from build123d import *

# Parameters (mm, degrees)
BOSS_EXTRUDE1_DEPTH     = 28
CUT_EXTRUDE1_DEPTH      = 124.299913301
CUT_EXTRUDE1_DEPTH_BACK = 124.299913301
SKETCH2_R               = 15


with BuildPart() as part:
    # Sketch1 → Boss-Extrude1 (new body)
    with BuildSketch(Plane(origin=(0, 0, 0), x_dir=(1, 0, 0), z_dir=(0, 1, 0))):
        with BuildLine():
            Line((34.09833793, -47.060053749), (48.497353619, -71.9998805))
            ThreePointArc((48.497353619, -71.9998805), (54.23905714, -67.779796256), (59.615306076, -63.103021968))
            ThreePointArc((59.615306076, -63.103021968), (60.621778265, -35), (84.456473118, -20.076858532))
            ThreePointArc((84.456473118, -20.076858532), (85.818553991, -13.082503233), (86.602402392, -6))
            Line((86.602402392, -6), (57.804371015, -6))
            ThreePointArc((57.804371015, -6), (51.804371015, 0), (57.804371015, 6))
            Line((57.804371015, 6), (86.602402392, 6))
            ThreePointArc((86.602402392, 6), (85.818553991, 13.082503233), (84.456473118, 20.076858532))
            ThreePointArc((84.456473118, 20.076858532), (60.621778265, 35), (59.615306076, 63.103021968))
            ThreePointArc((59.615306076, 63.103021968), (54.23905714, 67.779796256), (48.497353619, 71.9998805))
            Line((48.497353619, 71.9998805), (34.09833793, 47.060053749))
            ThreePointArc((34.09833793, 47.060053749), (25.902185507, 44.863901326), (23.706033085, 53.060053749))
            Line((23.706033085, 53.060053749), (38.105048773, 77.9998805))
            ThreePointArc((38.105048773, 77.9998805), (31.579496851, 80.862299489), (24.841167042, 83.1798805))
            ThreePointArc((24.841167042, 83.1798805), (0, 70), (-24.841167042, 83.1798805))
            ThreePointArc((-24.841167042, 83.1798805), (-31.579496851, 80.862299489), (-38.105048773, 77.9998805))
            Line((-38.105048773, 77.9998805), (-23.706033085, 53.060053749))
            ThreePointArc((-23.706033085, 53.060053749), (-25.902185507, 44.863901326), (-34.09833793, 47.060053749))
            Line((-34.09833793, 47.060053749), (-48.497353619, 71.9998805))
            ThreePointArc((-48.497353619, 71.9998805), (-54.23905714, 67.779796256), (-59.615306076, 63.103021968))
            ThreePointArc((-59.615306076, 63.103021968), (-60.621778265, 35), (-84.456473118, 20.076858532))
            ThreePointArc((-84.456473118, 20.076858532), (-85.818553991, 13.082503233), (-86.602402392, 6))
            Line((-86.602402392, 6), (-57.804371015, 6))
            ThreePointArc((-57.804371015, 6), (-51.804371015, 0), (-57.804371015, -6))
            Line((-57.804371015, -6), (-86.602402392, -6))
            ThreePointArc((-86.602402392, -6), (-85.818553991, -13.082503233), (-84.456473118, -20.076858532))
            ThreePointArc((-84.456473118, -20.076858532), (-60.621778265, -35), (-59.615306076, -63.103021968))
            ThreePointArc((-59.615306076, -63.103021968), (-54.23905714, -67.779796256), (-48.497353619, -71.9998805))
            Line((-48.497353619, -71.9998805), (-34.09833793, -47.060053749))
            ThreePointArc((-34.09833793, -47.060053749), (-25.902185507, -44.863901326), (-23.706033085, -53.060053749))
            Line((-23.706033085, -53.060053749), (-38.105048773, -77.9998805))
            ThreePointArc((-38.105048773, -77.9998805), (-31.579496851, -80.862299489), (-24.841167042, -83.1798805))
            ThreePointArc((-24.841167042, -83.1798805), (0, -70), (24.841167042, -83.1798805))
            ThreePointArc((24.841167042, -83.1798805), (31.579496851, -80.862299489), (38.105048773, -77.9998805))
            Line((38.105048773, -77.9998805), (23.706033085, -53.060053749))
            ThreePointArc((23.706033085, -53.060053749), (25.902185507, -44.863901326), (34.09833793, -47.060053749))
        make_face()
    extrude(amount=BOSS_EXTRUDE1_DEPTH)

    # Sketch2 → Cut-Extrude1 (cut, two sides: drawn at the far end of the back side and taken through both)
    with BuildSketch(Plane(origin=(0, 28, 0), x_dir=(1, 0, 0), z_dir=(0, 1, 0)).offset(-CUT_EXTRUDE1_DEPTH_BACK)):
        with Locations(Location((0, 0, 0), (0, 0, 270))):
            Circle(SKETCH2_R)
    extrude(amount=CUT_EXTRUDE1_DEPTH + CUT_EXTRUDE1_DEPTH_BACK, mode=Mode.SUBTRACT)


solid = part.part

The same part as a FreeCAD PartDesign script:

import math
import FreeCAD as App
import Part
import Sketcher

V = App.Vector
Q = App.Units.Quantity

doc = App.newDocument("Part")
body = doc.addObject("PartDesign::Body", "Body")

sketch1 = doc.addObject("Sketcher::SketchObject", "Sketch")
body.addObject(sketch1)
sketch1.AttachmentSupport = (doc.XZ_Plane, [""])
sketch1.MapMode = "FlatFace"
sketch1.addGeometry(Part.LineSegment(V(34, 47, 0), V(48, 72, 0)), False)
sketch1.addGeometry(Part.ArcOfCircle(Part.Circle(V(0, 0, 0), V(0, 0, 1), 87), math.radians(46.63), math.radians(56.04)), False)
sketch1.addGeometry(Part.ArcOfCircle(Part.Circle(V(87, 50, 0), V(0, 0, 1), 30), math.radians(154), math.radians(266)), False)
sketch1.addGeometry(Part.ArcOfCircle(Part.Circle(V(0, 0, 0), V(0, 0, 1), 87), math.radians(3.96), math.radians(13.37)), False)
sketch1.addGeometry(Part.LineSegment(V(87, 6, 0), V(58, 6, 0)), False)
sketch1.addGeometry(Part.ArcOfCircle(Part.Circle(V(58, 0, 0), V(0, 0, 1), 6), math.radians(90), math.radians(270)), False)
sketch1.addGeometry(Part.LineSegment(V(58, -6, 0), V(87, -6, 0)), False)
sketch1.addGeometry(Part.ArcOfCircle(Part.Circle(V(0, 0, 0), V(0, 0, 1), 87), math.radians(-13.37), math.radians(-3.96)), False)
sketch1.addGeometry(Part.ArcOfCircle(Part.Circle(V(87, -50, 0), V(0, 0, 1), 30), math.radians(94), math.radians(206)), False)
sketch1.addGeometry(Part.ArcOfCircle(Part.Circle(V(0, 0, 0), V(0, 0, 1), 87), math.radians(-56.04), math.radians(-46.63)), False)
sketch1.addGeometry(Part.LineSegment(V(48, -72, 0), V(34, -47, 0)), False)
sketch1.addGeometry(Part.ArcOfCircle(Part.Circle(V(29, -50, 0), V(0, 0, 1), 6), math.radians(30), math.radians(210)), False)
sketch1.addGeometry(Part.LineSegment(V(24, -53, 0), V(38, -78, 0)), False)
sketch1.addGeometry(Part.ArcOfCircle(Part.Circle(V(0, 0, 0), V(0, 0, 1), 87), math.radians(-73.37), math.radians(-63.96)), False)
sketch1.addGeometry(Part.ArcOfCircle(Part.Circle(V(0, -100, 0), V(0, 0, 1), 30), math.radians(34), math.radians(146)), False)
sketch1.addGeometry(Part.ArcOfCircle(Part.Circle(V(0, 0, 0), V(0, 0, 1), 87), math.radians(-116.04), math.radians(-106.63)), False)
sketch1.addGeometry(Part.LineSegment(V(-38, -78, 0), V(-24, -53, 0)), False)
sketch1.addGeometry(Part.ArcOfCircle(Part.Circle(V(-29, -50, 0), V(0, 0, 1), 6), math.radians(-30), math.radians(150)), False)
sketch1.addGeometry(Part.LineSegment(V(-34, -47, 0), V(-48, -72, 0)), False)
sketch1.addGeometry(Part.ArcOfCircle(Part.Circle(V(0, 0, 0), V(0, 0, 1), 87), math.radians(-133.37), math.radians(-123.96)), False)
sketch1.addGeometry(Part.ArcOfCircle(Part.Circle(V(-87, -50, 0), V(0, 0, 1), 30), math.radians(-26), math.radians(86)), False)
sketch1.addGeometry(Part.ArcOfCircle(Part.Circle(V(0, 0, 0), V(0, 0, 1), 87), math.radians(-176.04), math.radians(-166.63)), False)
sketch1.addGeometry(Part.LineSegment(V(-87, -6, 0), V(-58, -6, 0)), False)
sketch1.addGeometry(Part.ArcOfCircle(Part.Circle(V(-58, 0, 0), V(0, 0, 1), 6), math.radians(-90), math.radians(90)), False)
sketch1.addGeometry(Part.LineSegment(V(-58, 6, 0), V(-87, 6, 0)), False)
sketch1.addGeometry(Part.ArcOfCircle(Part.Circle(V(0, 0, 0), V(0, 0, 1), 87), math.radians(166.63), math.radians(176.04)), False)
sketch1.addGeometry(Part.ArcOfCircle(Part.Circle(V(-87, 50, 0), V(0, 0, 1), 30), math.radians(-86), math.radians(26)), False)
sketch1.addGeometry(Part.ArcOfCircle(Part.Circle(V(0, 0, 0), V(0, 0, 1), 87), math.radians(123.96), math.radians(133.37)), False)
sketch1.addGeometry(Part.LineSegment(V(-48, 72, 0), V(-34, 47, 0)), False)
sketch1.addGeometry(Part.ArcOfCircle(Part.Circle(V(-29, 50, 0), V(0, 0, 1), 6), math.radians(-150), math.radians(30)), False)
sketch1.addGeometry(Part.LineSegment(V(-24, 53, 0), V(-38, 78, 0)), False)
sketch1.addGeometry(Part.ArcOfCircle(Part.Circle(V(0, 0, 0), V(0, 0, 1), 87), math.radians(106.63), math.radians(116.04)), False)
sketch1.addGeometry(Part.ArcOfCircle(Part.Circle(V(0, 100, 0), V(0, 0, 1), 30), math.radians(-146), math.radians(-34)), False)
sketch1.addGeometry(Part.ArcOfCircle(Part.Circle(V(0, 0, 0), V(0, 0, 1), 87), math.radians(63.96), math.radians(73.37)), False)
sketch1.addGeometry(Part.LineSegment(V(38, 78, 0), V(24, 53, 0)), False)
sketch1.addGeometry(Part.ArcOfCircle(Part.Circle(V(29, 50, 0), V(0, 0, 1), 6), math.radians(150), math.radians(330)), False)
sketch1.addConstraint(Sketcher.Constraint("Coincident", 0, 2, 1, 2))
sketch1.addConstraint(Sketcher.Constraint("Coincident", 1, 1, 2, 1))
sketch1.addConstraint(Sketcher.Constraint("Coincident", 2, 2, 3, 2))
sketch1.addConstraint(Sketcher.Constraint("Coincident", 3, 1, 4, 1))
sketch1.addConstraint(Sketcher.Constraint("Tangent", 4, 2, 5, 1))
sketch1.addConstraint(Sketcher.Constraint("Tangent", 5, 2, 6, 1))
sketch1.addConstraint(Sketcher.Constraint("Coincident", 6, 2, 7, 2))
sketch1.addConstraint(Sketcher.Constraint("Coincident", 7, 1, 8, 1))
sketch1.addConstraint(Sketcher.Constraint("Coincident", 8, 2, 9, 2))
sketch1.addConstraint(Sketcher.Constraint("Coincident", 9, 1, 10, 1))
sketch1.addConstraint(Sketcher.Constraint("Tangent", 10, 2, 11, 1))
sketch1.addConstraint(Sketcher.Constraint("Tangent", 11, 2, 12, 1))
sketch1.addConstraint(Sketcher.Constraint("Coincident", 12, 2, 13, 2))
sketch1.addConstraint(Sketcher.Constraint("Coincident", 13, 1, 14, 1))
sketch1.addConstraint(Sketcher.Constraint("Coincident", 14, 2, 15, 2))
sketch1.addConstraint(Sketcher.Constraint("Coincident", 15, 1, 16, 1))
sketch1.addConstraint(Sketcher.Constraint("Tangent", 16, 2, 17, 1))
sketch1.addConstraint(Sketcher.Constraint("Tangent", 17, 2, 18, 1))
sketch1.addConstraint(Sketcher.Constraint("Coincident", 18, 2, 19, 2))
sketch1.addConstraint(Sketcher.Constraint("Coincident", 19, 1, 20, 1))
sketch1.addConstraint(Sketcher.Constraint("Coincident", 20, 2, 21, 2))
sketch1.addConstraint(Sketcher.Constraint("Coincident", 21, 1, 22, 1))
sketch1.addConstraint(Sketcher.Constraint("Tangent", 22, 2, 23, 1))
sketch1.addConstraint(Sketcher.Constraint("Tangent", 23, 2, 24, 1))
sketch1.addConstraint(Sketcher.Constraint("Coincident", 24, 2, 25, 2))
sketch1.addConstraint(Sketcher.Constraint("Coincident", 25, 1, 26, 1))
sketch1.addConstraint(Sketcher.Constraint("Coincident", 26, 2, 27, 2))
sketch1.addConstraint(Sketcher.Constraint("Coincident", 27, 1, 28, 1))
sketch1.addConstraint(Sketcher.Constraint("Tangent", 28, 2, 29, 1))
sketch1.addConstraint(Sketcher.Constraint("Tangent", 29, 2, 30, 1))
sketch1.addConstraint(Sketcher.Constraint("Coincident", 30, 2, 31, 2))
sketch1.addConstraint(Sketcher.Constraint("Coincident", 31, 1, 32, 1))
sketch1.addConstraint(Sketcher.Constraint("Coincident", 32, 2, 33, 2))
sketch1.addConstraint(Sketcher.Constraint("Coincident", 33, 1, 34, 1))
sketch1.addConstraint(Sketcher.Constraint("Tangent", 34, 2, 35, 1))
sketch1.addConstraint(Sketcher.Constraint("Tangent", 35, 2, 0, 1))
sketch1.addConstraint(Sketcher.Constraint("Horizontal", 4))
sketch1.addConstraint(Sketcher.Constraint("Horizontal", 6))
sketch1.addConstraint(Sketcher.Constraint("Horizontal", 22))
sketch1.addConstraint(Sketcher.Constraint("Horizontal", 24))
sketch1.addConstraint(Sketcher.Constraint("Coincident", 1, 3, -1, 1))
sketch1.addConstraint(Sketcher.Constraint("Coincident", 3, 3, -1, 1))
sketch1.addConstraint(Sketcher.Constraint("Coincident", 7, 3, -1, 1))
sketch1.addConstraint(Sketcher.Constraint("Coincident", 9, 3, -1, 1))
sketch1.addConstraint(Sketcher.Constraint("Coincident", 13, 3, -1, 1))
sketch1.addConstraint(Sketcher.Constraint("Coincident", 15, 3, -1, 1))
sketch1.addConstraint(Sketcher.Constraint("Coincident", 19, 3, -1, 1))
sketch1.addConstraint(Sketcher.Constraint("Coincident", 21, 3, -1, 1))
sketch1.addConstraint(Sketcher.Constraint("Coincident", 25, 3, -1, 1))
sketch1.addConstraint(Sketcher.Constraint("Coincident", 27, 3, -1, 1))
sketch1.addConstraint(Sketcher.Constraint("Coincident", 31, 3, -1, 1))
sketch1.addConstraint(Sketcher.Constraint("Coincident", 33, 3, -1, 1))
sketch1.addConstraint(Sketcher.Constraint("Equal", 1, 3))
sketch1.addConstraint(Sketcher.Constraint("Equal", 3, 7))
sketch1.addConstraint(Sketcher.Constraint("Equal", 2, 8))
sketch1.addConstraint(Sketcher.Constraint("Equal", 7, 9))
sketch1.addConstraint(Sketcher.Constraint("Equal", 5, 11))
sketch1.addConstraint(Sketcher.Constraint("Equal", 9, 13))
sketch1.addConstraint(Sketcher.Constraint("Equal", 8, 14))
sketch1.addConstraint(Sketcher.Constraint("Equal", 13, 15))
sketch1.addConstraint(Sketcher.Constraint("Equal", 11, 17))
sketch1.addConstraint(Sketcher.Constraint("Equal", 15, 19))
sketch1.addConstraint(Sketcher.Constraint("Equal", 14, 20))
sketch1.addConstraint(Sketcher.Constraint("Equal", 19, 21))
sketch1.addConstraint(Sketcher.Constraint("Equal", 17, 23))
sketch1.addConstraint(Sketcher.Constraint("Equal", 21, 25))
sketch1.addConstraint(Sketcher.Constraint("Equal", 20, 26))
sketch1.addConstraint(Sketcher.Constraint("Equal", 25, 27))
sketch1.addConstraint(Sketcher.Constraint("Equal", 23, 29))
sketch1.addConstraint(Sketcher.Constraint("Equal", 27, 31))
sketch1.addConstraint(Sketcher.Constraint("Equal", 26, 32))
sketch1.addConstraint(Sketcher.Constraint("Equal", 31, 33))
sketch1.addConstraint(Sketcher.Constraint("Equal", 29, 35))
sketch1.addConstraint(Sketcher.Constraint("Symmetric", 2, 3, 20, 3, -1, 1))
sketch1.addConstraint(Sketcher.Constraint("Symmetric", 5, 3, 23, 3, -1, 1))
sketch1.addConstraint(Sketcher.Constraint("Symmetric", 8, 3, 26, 3, -1, 1))
sketch1.addConstraint(Sketcher.Constraint("Symmetric", 11, 3, 29, 3, -1, 1))
sketch1.addConstraint(Sketcher.Constraint("Symmetric", 14, 3, 32, 3, -1, 1))
sketch1.addConstraint(Sketcher.Constraint("Symmetric", 17, 3, 35, 3, -1, 1))
sketch1.addConstraint(Sketcher.Constraint("Symmetric", 11, 3, 17, 3, -2))
sketch1.addConstraint(Sketcher.Constraint("Symmetric", 8, 3, 20, 3, -2))
sketch1.addConstraint(Sketcher.Constraint("PointOnObject", 5, 3, -1))
sketch1.addConstraint(Sketcher.Constraint("PointOnObject", 14, 3, -2))
sketch1.addConstraint(Sketcher.Constraint("Parallel", 10, 12))
sketch1.addConstraint(Sketcher.Constraint("Parallel", 0, 16))
sketch1.addConstraint(Sketcher.Constraint("Parallel", 16, 18))
sketch1.addConstraint(Sketcher.Constraint("Parallel", 12, 28))
sketch1.addConstraint(Sketcher.Constraint("Parallel", 28, 30))
sketch1.addConstraint(Sketcher.Constraint("Parallel", 18, 34))
sketch1.addConstraint(Sketcher.Constraint("Horizontal", 12, 2, 15, 1))
sketch1.addConstraint(Sketcher.Constraint("Equal", 10, 12))
sketch1.addConstraint(Sketcher.Constraint("Radius", 2, Q("30 mm")))
sketch1.addConstraint(Sketcher.Constraint("Radius", 5, Q("6 mm")))
sketch1.addConstraint(Sketcher.Constraint("Angle", 0, Q("60 deg")))
sketch1.addConstraint(Sketcher.Constraint("Radius", 1, Q("86.81 mm")))
sketch1.addConstraint(Sketcher.Constraint("DistanceY", -1, 1, 2, 3, Q("50 mm")))
sketch1.addConstraint(Sketcher.Constraint("DistanceY", 14, 3, -1, 1, Q("100 mm")))
sketch1.addConstraint(Sketcher.Constraint("DistanceX", 4, 2, 4, 1, Q("28.798031 mm")))
sketch1.addConstraint(Sketcher.Constraint("DistanceX", 14, 2, 11, 2, Q("48.5472 mm")))
sketch1.addConstraint(Sketcher.Constraint("DistanceX", -1, 1, 2, 3, Q("86.60254 mm")))
pad1 = doc.addObject("PartDesign::Pad", "Pad")
body.addObject(pad1)
pad1.Profile = sketch1
pad1.Length = 28
pad1.Reversed = True

sketch2 = doc.addObject("Sketcher::SketchObject", "Sketch001")
body.addObject(sketch2)
sketch2.AttachmentSupport = (doc.XZ_Plane, [""])
sketch2.MapMode = "FlatFace"
sketch2.AttachmentOffset = App.Placement(V(0, 0, -28), App.Rotation())
sketch2.addGeometry(Part.Circle(V(0, 0, 0), V(0, 0, 1), 15), False)
sketch2.addConstraint(Sketcher.Constraint("Coincident", 0, 3, -1, 1))
sketch2.addConstraint(Sketcher.Constraint("Diameter", 0, Q("30 mm")))
pocket1 = doc.addObject("PartDesign::Pocket", "Pocket")
body.addObject(pocket1)
pocket1.Profile = sketch2
pocket1.Type = "ThroughAll"
pocket1.Midplane = True

doc.recompute()
